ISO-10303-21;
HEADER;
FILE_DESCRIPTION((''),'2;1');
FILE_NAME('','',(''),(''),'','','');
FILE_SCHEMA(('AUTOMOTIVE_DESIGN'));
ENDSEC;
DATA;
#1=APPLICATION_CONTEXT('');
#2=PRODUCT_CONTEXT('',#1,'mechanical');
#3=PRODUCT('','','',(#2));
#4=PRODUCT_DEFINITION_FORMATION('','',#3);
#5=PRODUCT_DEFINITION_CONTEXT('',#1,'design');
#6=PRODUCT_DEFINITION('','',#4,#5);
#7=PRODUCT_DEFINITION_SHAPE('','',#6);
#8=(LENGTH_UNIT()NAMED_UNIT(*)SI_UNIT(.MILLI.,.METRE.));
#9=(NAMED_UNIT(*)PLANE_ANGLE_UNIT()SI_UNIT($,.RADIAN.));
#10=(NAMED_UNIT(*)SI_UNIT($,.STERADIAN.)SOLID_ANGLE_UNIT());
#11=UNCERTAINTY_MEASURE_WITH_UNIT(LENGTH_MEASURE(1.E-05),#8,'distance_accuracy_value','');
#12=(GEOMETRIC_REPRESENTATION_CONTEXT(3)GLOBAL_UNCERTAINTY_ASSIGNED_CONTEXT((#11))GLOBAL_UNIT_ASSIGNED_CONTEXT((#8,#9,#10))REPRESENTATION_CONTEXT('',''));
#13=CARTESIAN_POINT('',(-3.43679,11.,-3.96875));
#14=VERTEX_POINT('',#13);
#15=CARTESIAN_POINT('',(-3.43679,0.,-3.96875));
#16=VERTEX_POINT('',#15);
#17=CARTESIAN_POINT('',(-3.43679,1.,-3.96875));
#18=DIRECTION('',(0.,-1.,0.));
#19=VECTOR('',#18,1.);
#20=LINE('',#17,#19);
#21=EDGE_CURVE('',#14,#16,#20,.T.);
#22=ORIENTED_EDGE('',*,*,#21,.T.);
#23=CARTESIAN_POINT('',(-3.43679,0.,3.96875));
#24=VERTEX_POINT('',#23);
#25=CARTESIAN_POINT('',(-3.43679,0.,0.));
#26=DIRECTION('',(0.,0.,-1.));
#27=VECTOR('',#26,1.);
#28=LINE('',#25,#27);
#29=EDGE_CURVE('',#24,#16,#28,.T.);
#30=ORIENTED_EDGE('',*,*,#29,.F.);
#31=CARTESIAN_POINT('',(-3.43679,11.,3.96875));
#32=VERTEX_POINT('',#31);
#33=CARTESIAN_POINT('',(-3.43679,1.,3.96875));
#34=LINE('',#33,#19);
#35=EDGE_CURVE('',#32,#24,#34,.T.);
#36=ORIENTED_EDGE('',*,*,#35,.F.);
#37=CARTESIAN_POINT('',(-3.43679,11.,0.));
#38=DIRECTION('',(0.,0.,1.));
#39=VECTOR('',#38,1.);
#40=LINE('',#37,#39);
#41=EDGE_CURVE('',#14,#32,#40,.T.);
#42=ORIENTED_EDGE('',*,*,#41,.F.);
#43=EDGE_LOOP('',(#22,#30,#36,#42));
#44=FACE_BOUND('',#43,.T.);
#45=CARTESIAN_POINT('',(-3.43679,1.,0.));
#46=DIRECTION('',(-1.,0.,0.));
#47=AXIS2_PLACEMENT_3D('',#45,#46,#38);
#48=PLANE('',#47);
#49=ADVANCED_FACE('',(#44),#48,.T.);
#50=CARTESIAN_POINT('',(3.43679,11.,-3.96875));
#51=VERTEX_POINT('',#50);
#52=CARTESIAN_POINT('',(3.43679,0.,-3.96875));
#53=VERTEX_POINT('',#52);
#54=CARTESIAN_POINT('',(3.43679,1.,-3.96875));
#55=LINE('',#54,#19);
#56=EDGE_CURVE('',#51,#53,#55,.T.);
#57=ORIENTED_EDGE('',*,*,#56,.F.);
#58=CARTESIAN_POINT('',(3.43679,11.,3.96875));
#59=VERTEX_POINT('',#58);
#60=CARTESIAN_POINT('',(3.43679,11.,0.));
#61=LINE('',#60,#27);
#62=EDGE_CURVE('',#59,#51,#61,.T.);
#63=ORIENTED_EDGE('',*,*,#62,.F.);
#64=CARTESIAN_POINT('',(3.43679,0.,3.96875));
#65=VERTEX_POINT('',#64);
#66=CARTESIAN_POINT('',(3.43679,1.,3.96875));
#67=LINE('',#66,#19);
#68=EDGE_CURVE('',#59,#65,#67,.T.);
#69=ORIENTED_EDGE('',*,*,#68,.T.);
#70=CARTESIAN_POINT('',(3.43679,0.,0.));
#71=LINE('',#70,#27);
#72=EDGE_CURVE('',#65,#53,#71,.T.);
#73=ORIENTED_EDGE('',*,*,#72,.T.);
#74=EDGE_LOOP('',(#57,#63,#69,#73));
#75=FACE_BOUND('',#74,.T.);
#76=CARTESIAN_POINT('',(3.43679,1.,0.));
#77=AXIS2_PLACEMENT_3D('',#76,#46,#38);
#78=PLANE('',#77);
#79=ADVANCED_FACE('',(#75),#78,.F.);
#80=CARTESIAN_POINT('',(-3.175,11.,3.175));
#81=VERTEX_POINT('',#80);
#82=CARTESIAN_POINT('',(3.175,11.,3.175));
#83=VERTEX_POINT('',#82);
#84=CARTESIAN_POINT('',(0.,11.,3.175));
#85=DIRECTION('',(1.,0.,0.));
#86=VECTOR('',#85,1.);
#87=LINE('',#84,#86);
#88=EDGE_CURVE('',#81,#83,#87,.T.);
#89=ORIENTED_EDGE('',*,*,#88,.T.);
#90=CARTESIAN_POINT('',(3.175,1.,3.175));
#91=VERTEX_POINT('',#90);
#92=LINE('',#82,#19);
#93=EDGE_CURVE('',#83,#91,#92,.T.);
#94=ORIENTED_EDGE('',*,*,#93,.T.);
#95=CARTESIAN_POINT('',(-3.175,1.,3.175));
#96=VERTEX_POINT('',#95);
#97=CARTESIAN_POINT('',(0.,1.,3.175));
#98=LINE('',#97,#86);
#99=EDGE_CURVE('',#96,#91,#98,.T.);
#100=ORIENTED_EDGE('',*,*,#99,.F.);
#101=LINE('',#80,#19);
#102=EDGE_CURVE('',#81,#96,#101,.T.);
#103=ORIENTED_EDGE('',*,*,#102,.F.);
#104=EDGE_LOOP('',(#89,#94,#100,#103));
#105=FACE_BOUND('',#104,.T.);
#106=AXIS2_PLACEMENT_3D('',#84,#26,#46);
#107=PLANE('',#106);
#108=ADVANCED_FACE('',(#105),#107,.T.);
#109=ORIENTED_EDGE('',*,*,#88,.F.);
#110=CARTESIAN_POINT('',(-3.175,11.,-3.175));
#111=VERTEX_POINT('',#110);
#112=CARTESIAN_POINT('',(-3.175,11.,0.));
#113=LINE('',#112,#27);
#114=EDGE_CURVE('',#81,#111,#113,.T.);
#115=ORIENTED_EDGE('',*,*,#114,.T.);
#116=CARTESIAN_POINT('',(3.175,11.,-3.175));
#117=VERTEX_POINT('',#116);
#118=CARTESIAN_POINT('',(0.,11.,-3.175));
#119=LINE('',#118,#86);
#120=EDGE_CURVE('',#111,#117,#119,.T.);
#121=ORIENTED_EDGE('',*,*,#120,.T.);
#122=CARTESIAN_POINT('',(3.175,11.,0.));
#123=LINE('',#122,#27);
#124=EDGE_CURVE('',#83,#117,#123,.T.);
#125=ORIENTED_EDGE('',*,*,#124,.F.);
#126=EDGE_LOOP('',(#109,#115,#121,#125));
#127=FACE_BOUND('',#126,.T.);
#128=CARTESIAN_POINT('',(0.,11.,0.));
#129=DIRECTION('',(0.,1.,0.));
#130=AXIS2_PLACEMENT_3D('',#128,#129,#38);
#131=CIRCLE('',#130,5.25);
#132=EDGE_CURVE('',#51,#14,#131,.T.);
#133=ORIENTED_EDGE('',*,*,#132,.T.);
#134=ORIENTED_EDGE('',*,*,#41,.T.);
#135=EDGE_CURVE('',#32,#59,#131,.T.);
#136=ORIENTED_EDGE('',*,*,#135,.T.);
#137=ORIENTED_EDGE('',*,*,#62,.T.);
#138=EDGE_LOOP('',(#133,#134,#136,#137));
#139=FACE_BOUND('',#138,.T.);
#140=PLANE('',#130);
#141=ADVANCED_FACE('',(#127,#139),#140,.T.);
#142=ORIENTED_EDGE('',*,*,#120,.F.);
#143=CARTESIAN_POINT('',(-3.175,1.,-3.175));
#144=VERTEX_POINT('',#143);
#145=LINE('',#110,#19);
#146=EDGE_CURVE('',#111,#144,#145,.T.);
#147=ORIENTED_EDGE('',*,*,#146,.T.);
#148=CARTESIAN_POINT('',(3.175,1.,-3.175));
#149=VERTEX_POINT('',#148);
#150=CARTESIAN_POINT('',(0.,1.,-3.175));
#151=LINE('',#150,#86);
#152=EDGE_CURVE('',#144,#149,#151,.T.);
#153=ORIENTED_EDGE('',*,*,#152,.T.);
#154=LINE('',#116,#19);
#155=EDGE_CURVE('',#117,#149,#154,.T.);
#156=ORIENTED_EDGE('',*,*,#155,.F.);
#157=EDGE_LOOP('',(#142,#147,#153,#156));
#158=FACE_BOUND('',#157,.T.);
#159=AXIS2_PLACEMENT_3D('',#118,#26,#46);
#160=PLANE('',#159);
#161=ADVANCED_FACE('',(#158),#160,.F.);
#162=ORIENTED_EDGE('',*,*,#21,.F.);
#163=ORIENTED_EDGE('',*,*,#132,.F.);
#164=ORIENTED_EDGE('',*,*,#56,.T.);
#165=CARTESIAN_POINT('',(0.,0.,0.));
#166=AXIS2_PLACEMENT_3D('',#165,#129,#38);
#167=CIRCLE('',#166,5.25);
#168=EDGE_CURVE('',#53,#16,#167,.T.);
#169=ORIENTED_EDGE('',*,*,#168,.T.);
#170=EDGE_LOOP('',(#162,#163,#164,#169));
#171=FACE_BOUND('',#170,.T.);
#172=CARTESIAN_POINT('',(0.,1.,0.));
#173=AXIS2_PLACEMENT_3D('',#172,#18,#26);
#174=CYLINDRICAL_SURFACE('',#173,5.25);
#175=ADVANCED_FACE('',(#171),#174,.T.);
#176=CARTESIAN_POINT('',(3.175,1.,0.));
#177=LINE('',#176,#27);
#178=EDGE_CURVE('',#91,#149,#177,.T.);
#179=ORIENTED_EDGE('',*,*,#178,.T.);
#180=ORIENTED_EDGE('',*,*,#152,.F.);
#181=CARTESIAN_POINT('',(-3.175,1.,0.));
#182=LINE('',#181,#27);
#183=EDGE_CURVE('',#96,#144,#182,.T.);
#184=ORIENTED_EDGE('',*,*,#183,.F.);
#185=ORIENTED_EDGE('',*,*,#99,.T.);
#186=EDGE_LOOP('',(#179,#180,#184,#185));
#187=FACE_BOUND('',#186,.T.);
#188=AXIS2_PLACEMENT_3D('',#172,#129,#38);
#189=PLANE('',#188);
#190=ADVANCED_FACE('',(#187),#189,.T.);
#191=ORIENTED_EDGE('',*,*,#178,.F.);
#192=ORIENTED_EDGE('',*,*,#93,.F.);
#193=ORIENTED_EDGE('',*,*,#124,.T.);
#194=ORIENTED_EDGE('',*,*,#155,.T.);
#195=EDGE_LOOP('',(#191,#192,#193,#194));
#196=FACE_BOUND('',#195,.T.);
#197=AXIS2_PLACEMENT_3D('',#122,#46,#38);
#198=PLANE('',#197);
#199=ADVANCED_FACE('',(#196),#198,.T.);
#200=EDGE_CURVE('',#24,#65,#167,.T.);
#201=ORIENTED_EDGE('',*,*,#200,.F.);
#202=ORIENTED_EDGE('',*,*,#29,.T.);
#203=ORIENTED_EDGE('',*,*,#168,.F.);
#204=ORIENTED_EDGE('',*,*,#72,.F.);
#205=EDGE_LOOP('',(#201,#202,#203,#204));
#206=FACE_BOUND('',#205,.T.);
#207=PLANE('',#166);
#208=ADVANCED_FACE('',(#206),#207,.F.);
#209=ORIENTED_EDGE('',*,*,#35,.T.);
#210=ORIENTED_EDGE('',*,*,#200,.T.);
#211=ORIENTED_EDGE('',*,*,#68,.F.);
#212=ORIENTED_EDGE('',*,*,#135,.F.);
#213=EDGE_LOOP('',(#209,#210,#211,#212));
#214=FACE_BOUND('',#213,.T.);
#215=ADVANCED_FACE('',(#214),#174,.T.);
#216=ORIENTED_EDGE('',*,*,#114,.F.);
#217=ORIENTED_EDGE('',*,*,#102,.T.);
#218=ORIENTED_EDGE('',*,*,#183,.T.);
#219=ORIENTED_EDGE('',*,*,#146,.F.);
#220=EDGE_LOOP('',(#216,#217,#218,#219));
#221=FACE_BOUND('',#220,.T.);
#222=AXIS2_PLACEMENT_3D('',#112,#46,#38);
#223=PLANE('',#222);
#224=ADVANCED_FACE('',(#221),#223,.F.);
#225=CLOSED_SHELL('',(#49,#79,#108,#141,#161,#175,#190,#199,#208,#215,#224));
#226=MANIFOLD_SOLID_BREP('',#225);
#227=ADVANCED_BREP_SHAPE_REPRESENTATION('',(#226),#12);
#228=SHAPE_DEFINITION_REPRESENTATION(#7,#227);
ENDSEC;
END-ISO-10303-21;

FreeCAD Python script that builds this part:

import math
import FreeCAD as App
import Part
import Sketcher

V = App.Vector
Q = App.Units.Quantity


def add_polygon(sketch, points):
    """Adds a closed chain of lines whose ends are joined by coincident constraints."""
    first, n = sketch.GeometryCount, len(points)
    for a, b in zip(points, points[1:] + points[:1]):
        sketch.addGeometry(Part.LineSegment(App.Vector(*a, 0), App.Vector(*b, 0)), False)
    for i in range(n):
        sketch.addConstraint(Sketcher.Constraint("Coincident", first + i, 2, first + (i + 1) % n, 1))

doc = App.newDocument("Part")
body = doc.addObject("PartDesign::Body", "Body")

# Sketch on XZ plane
sketch1 = doc.addObject("Sketcher::SketchObject", "Sketch")
body.addObject(sketch1)
sketch1.AttachmentSupport = (doc.XZ_Plane, [""])
sketch1.MapMode = "FlatFace"
sketch1.addGeometry([
    Part.LineSegment(V(-3.43679, -3.96875, 0), V(-3.43679, 3.96875, 0)),
    Part.ArcOfCircle(Part.Circle(V(0, 0, 0), V(0, 0, 1), 5.25), math.radians(49.108656), math.radians(130.891344)),
    Part.LineSegment(V(3.43679, 3.96875, 0), V(3.43679, -3.96875, 0)),
    Part.ArcOfCircle(Part.Circle(V(0, 0, 0), V(0, 0, 1), 5.25), math.radians(-130.891344), math.radians(-49.108656)),
], False)
sketch1.addConstraint([
    Sketcher.Constraint("Coincident", 0, 2, 1, 2),
    Sketcher.Constraint("Coincident", 1, 1, 2, 1),
    Sketcher.Constraint("Coincident", 2, 2, 3, 2),
    Sketcher.Constraint("Coincident", 3, 1, 0, 1),
    Sketcher.Constraint("Vertical", 0),
    Sketcher.Constraint("Vertical", 2),
    Sketcher.Constraint("Coincident", 1, 3, -1, 1),
    Sketcher.Constraint("Coincident", 3, 3, -1, 1),
    Sketcher.Constraint("Equal", 1, 3),
    Sketcher.Constraint("Horizontal", 0, 2, 1, 1),
    Sketcher.Constraint("Radius", 1, Q("5.25 mm")),
    Sketcher.Constraint("DistanceY", 0, 1, 0, 2, Q("7.9375 mm")),
])
pad1 = doc.addObject("PartDesign::Pad", "Pad")
body.addObject(pad1)
pad1.Profile = sketch1
pad1.Length = 1
pad1.Reversed = True

# Sketch on XZ plane
sketch2 = doc.addObject("Sketcher::SketchObject", "Sketch001")
body.addObject(sketch2)
sketch2.AttachmentSupport = (doc.XZ_Plane, [""])
sketch2.MapMode = "FlatFace"
sketch2.AttachmentOffset = App.Placement(V(0, 0, -1), App.Rotation())
sketch2.addGeometry(Part.LineSegment(V(-3.43679, -3.96875, 0), V(-3.43679, 3.96875, 0)), False)  # 0
sketch2.addGeometry(Part.ArcOfCircle(Part.Circle(V(0, 0, 0), V(0, 0, 1), 5.25), math.radians(49.108656), math.radians(130.891344)), False)  # 1
sketch2.addGeometry(Part.LineSegment(V(3.43679, 3.96875, 0), V(3.43679, -3.96875, 0)), False)  # 2
sketch2.addGeometry(Part.ArcOfCircle(Part.Circle(V(0, 0, 0), V(0, 0, 1), 5.25), math.radians(-130.891344), math.radians(-49.108656)), False)  # 3
add_polygon(sketch2, [(3.175, 3.175), (-3.175, 3.175), (-3.175, -3.175), (3.175, -3.175)])  # lines 4-7
sketch2.addConstraint([
    Sketcher.Constraint("Coincident", 0, 2, 1, 2),
    Sketcher.Constraint("Coincident", 1, 1, 2, 1),
    Sketcher.Constraint("Coincident", 2, 2, 3, 2),
    Sketcher.Constraint("Coincident", 3, 1, 0, 1),
    Sketcher.Constraint("Vertical", 0),
    Sketcher.Constraint("Vertical", 2),
    Sketcher.Constraint("Horizontal", 4),
    Sketcher.Constraint("Vertical", 5),
    Sketcher.Constraint("Horizontal", 6),
    Sketcher.Constraint("Vertical", 7),
    Sketcher.Constraint("Coincident", 1, 3, -1, 1),
    Sketcher.Constraint("Coincident", 3, 3, -1, 1),
    Sketcher.Constraint("Equal", 1, 3),
    Sketcher.Constraint("Symmetric", 4, 2, 6, 2, -1, 1),
    Sketcher.Constraint("Horizontal", 0, 2, 1, 1),
    Sketcher.Constraint("Equal", 6, 5),
    Sketcher.Constraint("Radius", 1, Q("5.25 mm")),
    Sketcher.Constraint("DistanceX", 4, 2, 4, 1, Q("6.35 mm")),
    Sketcher.Constraint("DistanceY", 0, 1, 0, 2, Q("7.9375 mm")),
])
pad2 = doc.addObject("PartDesign::Pad", "Pad001")
body.addObject(pad2)
pad2.Profile = sketch2
pad2.Length = 10
pad2.Reversed = True

doc.recompute()
